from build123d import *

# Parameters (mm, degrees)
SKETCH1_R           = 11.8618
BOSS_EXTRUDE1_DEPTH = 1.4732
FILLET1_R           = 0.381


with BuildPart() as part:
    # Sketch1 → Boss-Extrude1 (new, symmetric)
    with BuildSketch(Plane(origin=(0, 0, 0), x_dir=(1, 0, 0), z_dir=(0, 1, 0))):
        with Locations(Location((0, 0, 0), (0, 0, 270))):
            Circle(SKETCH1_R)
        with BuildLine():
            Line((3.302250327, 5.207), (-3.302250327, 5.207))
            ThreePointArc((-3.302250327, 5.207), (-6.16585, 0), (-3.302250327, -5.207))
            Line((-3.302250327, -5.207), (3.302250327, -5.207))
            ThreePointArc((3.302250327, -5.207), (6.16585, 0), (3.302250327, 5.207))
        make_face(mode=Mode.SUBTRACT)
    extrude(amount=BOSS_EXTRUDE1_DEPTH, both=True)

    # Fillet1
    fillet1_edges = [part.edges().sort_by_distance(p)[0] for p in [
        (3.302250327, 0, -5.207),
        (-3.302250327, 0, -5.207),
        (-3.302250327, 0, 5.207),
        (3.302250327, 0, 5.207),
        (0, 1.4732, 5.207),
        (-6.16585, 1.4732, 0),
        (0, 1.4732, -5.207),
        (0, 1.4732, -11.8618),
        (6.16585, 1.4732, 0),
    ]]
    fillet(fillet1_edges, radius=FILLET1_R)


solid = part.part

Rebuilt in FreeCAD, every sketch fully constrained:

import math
import FreeCAD as App
import Part
import Sketcher
from FreeCAD import Vector
Q = App.Units.Quantity


def edges_at(feature, points):
    """Names of the edges that pass closest to the given points."""
    edges = feature.Shape.Edges
    near = lambda p: min(range(len(edges)), key=lambda i: edges[i].distToShape(Part.Vertex(*p))[0])
    return sorted({f"Edge{near(p) + 1}" for p in points})

doc = App.newDocument("Part")
body = doc.addObject("PartDesign::Body", "Body")

sketch1 = body.newObject("Sketcher::SketchObject", "Sketch")
sketch1.AttachmentSupport = (doc.getObject("XZ_Plane"), [""])
sketch1.MapMode = "FlatFace"
sketch1.addGeometry(Part.Circle(Vector(0, 0, 0), Vector(0, 0, 1), 12), False)
sketch1.addGeometry(Part.LineSegment(Vector(-3, -5, 0), Vector(3, -5, 0)), False)
sketch1.addGeometry(Part.ArcOfCircle(Part.Circle(Vector(0, 0, 0), Vector(0, 0, 1), 6), math.radians(-58), math.radians(58)), False)
sketch1.addGeometry(Part.LineSegment(Vector(3, 5, 0), Vector(-3, 5, 0)), False)
sketch1.addGeometry(Part.ArcOfCircle(Part.Circle(Vector(0, 0, 0), Vector(0, 0, 1), 6), math.radians(122), math.radians(238)), False)
sketch1.addConstraint(Sketcher.Constraint("Coincident", 1, 2, 2, 1))
sketch1.addConstraint(Sketcher.Constraint("Coincident", 2, 2, 3, 1))
sketch1.addConstraint(Sketcher.Constraint("Coincident", 3, 2, 4, 1))
sketch1.addConstraint(Sketcher.Constraint("Coincident", 4, 2, 1, 1))
sketch1.addConstraint(Sketcher.Constraint("Horizontal", 1))
sketch1.addConstraint(Sketcher.Constraint("Horizontal", 3))
sketch1.addConstraint(Sketcher.Constraint("Coincident", 0, 3, -1, 1))
sketch1.addConstraint(Sketcher.Constraint("Coincident", 2, 3, -1, 1))
sketch1.addConstraint(Sketcher.Constraint("Coincident", 4, 3, -1, 1))
sketch1.addConstraint(Sketcher.Constraint("Equal", 2, 4))
sketch1.addConstraint(Sketcher.Constraint("Vertical", 1, 2, 2, 2))
sketch1.addConstraint(Sketcher.Constraint("Diameter", 0, Q("0.934 in")))
sketch1.addConstraint(Sketcher.Constraint("DistanceY", 1, 2, 2, 2, Q("0.41 in")))
sketch1.addConstraint(Sketcher.Constraint("Radius", 2, Q("6.16585 mm")))
pad1 = body.newObject("PartDesign::Pad", "Pad")
pad1.Profile = sketch1
pad1.Length = Q("0.116 in")
pad1.Midplane = True
doc.recompute()

fillet = body.newObject("PartDesign::Fillet", "Fillet")
fillet.Base = (pad1, edges_at(pad1, [
    (3.302, 0, -5.207),
    (-3.302, 0, -5.207),
    (-3.302, 0, 5.207),
    (3.302, 0, 5.207),
    (0, 1.473, 5.207),
    (-6.166, 1.473, 0),
    (0, 1.473, -5.207),
    (0, 1.473, -11.862),
    (6.166, 1.473, 0),
]))
fillet.Radius = Q("0.015 in")

doc.recompute()
